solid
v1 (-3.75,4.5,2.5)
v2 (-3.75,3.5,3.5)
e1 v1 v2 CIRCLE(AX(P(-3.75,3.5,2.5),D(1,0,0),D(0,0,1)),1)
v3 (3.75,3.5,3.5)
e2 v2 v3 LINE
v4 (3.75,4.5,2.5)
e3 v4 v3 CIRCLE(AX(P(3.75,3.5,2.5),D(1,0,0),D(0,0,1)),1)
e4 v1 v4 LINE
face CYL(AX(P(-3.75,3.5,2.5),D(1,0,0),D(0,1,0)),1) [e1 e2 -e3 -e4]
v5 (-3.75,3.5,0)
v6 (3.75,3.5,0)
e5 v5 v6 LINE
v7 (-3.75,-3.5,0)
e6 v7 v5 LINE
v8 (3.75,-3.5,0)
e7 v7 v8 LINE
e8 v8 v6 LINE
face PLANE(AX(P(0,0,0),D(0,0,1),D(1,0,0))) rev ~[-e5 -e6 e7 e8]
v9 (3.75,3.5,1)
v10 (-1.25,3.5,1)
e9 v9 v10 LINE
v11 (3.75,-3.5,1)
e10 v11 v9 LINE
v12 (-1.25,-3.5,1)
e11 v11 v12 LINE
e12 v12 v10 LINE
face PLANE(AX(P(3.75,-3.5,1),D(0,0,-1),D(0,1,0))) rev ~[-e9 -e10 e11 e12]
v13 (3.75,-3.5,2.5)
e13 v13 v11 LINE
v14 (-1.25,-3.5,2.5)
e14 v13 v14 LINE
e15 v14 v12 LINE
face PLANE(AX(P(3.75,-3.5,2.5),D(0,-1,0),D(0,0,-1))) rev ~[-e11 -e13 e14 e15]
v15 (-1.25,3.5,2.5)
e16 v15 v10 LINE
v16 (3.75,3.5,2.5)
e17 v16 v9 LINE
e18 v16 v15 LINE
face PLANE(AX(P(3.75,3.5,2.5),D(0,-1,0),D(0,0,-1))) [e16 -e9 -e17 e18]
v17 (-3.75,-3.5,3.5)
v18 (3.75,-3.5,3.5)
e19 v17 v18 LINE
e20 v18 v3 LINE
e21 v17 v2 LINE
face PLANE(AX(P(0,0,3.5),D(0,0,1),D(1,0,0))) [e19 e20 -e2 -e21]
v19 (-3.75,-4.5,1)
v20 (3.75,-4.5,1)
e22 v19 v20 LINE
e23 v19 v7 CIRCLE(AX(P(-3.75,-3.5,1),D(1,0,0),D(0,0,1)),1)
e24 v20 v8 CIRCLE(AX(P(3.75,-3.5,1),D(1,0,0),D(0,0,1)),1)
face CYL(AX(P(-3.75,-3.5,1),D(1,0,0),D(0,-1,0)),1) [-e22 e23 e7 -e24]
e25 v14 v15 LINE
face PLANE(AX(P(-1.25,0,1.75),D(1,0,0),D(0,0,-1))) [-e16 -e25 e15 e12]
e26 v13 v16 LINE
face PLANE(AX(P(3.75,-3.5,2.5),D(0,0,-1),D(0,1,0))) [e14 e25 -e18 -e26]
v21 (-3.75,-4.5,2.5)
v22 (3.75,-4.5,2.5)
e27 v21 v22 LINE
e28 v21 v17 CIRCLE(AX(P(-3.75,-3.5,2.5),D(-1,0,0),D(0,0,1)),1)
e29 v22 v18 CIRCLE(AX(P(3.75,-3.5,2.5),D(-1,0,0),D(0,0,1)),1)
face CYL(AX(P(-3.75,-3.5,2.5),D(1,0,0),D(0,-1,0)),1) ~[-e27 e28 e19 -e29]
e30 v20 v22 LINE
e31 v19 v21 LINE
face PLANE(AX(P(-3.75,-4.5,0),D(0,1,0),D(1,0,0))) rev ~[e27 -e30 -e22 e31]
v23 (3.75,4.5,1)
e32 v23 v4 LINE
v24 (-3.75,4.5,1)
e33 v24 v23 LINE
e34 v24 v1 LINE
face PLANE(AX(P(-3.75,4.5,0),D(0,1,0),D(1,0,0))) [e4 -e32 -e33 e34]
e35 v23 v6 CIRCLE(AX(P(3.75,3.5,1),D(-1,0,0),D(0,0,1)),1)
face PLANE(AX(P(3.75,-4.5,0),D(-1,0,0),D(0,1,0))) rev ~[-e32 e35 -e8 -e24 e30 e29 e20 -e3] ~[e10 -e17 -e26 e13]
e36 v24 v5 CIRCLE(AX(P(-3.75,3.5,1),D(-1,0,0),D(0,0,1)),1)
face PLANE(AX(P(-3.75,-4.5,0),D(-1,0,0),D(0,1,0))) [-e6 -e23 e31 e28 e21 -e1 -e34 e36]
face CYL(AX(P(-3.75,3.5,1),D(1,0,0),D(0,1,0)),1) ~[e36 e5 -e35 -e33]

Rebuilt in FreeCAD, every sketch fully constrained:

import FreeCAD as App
import Part
import Sketcher


def edges_at(feature, points):
    """Names of the edges that pass closest to the given points."""
    edges = feature.Shape.Edges
    near = lambda p: min(range(len(edges)), key=lambda i: edges[i].distToShape(Part.Vertex(*p))[0])
    return sorted({f"Edge{near(p) + 1}" for p in points})

doc = App.newDocument("Part")
params = doc.addObject("Spreadsheet::Sheet", "Params")
for row, (alias, value) in enumerate([
    ("sketch1_height", "9 mm"),
    ("sketch1_width", "7.5 mm"),
    ("pad1_length", "3.5 mm"),
    ("fillet_radius", "1 mm"),
    ("sketch2_width", "7 mm"),
    ("sketch2_height", "1.5 mm"),
    ("pocket1_length", "5 mm"),
], start=1):
    params.set(f"A{row}", alias)
    params.set(f"B{row}", "=" + value)
    params.setAlias(f"B{row}", alias)

body = doc.addObject("PartDesign::Body", "Body")

# Sketch on XY plane
sketch1 = body.newObject("Sketcher::SketchObject", "Sketch")
sketch1.AttachmentSupport = (doc.getObject("XY_Plane"), [""])
sketch1.MapMode = "FlatFace"
sketch1.addGeometry([
    Part.LineSegment(App.Vector(-4, 4, 0), App.Vector(-4, -4, 0)),
    Part.LineSegment(App.Vector(-4, -4, 0), App.Vector(4, -4, 0)),
    Part.LineSegment(App.Vector(4, -4, 0), App.Vector(4, 4, 0)),
    Part.LineSegment(App.Vector(4, 4, 0), App.Vector(-4, 4, 0)),
], False)
sketch1.addConstraint([
    Sketcher.Constraint("Coincident", 0, 2, 1, 1),
    Sketcher.Constraint("Coincident", 1, 2, 2, 1),
    Sketcher.Constraint("Coincident", 2, 2, 3, 1),
    Sketcher.Constraint("Coincident", 3, 2, 0, 1),
    Sketcher.Constraint("Vertical", 0),
    Sketcher.Constraint("Horizontal", 1),
    Sketcher.Constraint("Vertical", 2),
    Sketcher.Constraint("Horizontal", 3),
    Sketcher.Constraint("Symmetric", 0, 2, 2, 2, -1, 1),
    Sketcher.Constraint("DistanceY", 0, 2, 0, 1, 9.0),
    Sketcher.Constraint("DistanceX", 1, 1, 1, 2, 7.5),
])
sketch1.setExpression("Constraints[9]", "Params.sketch1_height")
sketch1.setExpression("Constraints[10]", "Params.sketch1_width")
pad1 = body.newObject("PartDesign::Pad", "Pad")
pad1.Profile = sketch1
pad1.setExpression("Length", "Params.pad1_length")
doc.recompute()

fillet = body.newObject("PartDesign::Fillet", "Fillet")
fillet.Base = (pad1, edges_at(pad1, [
    (0, -4.5, 3.5),
    (0, -4.5, 0),
    (0, 4.5, 0),
    (0, 4.5, 3.5),
]))
fillet.setExpression("Radius", "Params.fillet_radius")

# Sketch on YZ plane
sketch2 = body.newObject("Sketcher::SketchObject", "Sketch001")
sketch2.AttachmentSupport = (doc.getObject("YZ_Plane"), [""])
sketch2.MapMode = "FlatFace"
sketch2.AttachmentOffset = App.Placement(App.Vector(0, 0, 3.75), App.Rotation())
sketch2.addGeometry([
    Part.LineSegment(App.Vector(3.5, 2.5, 0), App.Vector(-3.5, 2.5, 0)),
    Part.LineSegment(App.Vector(-3.5, 2.5, 0), App.Vector(-3.5, 1, 0)),
    Part.LineSegment(App.Vector(-3.5, 1, 0), App.Vector(3.5, 1, 0)),
    Part.LineSegment(App.Vector(3.5, 1, 0), App.Vector(3.5, 2.5, 0)),
], False)
sketch2.addConstraint([
    Sketcher.Constraint("Coincident", 0, 2, 1, 1),
    Sketcher.Constraint("Coincident", 1, 2, 2, 1),
    Sketcher.Constraint("Coincident", 2, 2, 3, 1),
    Sketcher.Constraint("Coincident", 3, 2, 0, 1),
    Sketcher.Constraint("Horizontal", 0),
    Sketcher.Constraint("Vertical", 1),
    Sketcher.Constraint("Horizontal", 2),
    Sketcher.Constraint("Vertical", 3),
    Sketcher.Constraint("DistanceX", 0, 2, 0, 1, 7.0),
    Sketcher.Constraint("DistanceY", 1, 2, 1, 1, 1.5),
    Sketcher.Constraint("DistanceY", -1, 1, 1, 2, 1.0),
    Sketcher.Constraint("DistanceX", 0, 2, -1, 1, 3.5),
])
sketch2.setExpression("Constraints[8]", "Params.sketch2_width")
sketch2.setExpression("Constraints[9]", "Params.sketch2_height")
pocket1 = body.newObject("PartDesign::Pocket", "Pocket")
pocket1.Profile = sketch2
pocket1.setExpression("Length", "Params.pocket1_length")

doc.recompute()
